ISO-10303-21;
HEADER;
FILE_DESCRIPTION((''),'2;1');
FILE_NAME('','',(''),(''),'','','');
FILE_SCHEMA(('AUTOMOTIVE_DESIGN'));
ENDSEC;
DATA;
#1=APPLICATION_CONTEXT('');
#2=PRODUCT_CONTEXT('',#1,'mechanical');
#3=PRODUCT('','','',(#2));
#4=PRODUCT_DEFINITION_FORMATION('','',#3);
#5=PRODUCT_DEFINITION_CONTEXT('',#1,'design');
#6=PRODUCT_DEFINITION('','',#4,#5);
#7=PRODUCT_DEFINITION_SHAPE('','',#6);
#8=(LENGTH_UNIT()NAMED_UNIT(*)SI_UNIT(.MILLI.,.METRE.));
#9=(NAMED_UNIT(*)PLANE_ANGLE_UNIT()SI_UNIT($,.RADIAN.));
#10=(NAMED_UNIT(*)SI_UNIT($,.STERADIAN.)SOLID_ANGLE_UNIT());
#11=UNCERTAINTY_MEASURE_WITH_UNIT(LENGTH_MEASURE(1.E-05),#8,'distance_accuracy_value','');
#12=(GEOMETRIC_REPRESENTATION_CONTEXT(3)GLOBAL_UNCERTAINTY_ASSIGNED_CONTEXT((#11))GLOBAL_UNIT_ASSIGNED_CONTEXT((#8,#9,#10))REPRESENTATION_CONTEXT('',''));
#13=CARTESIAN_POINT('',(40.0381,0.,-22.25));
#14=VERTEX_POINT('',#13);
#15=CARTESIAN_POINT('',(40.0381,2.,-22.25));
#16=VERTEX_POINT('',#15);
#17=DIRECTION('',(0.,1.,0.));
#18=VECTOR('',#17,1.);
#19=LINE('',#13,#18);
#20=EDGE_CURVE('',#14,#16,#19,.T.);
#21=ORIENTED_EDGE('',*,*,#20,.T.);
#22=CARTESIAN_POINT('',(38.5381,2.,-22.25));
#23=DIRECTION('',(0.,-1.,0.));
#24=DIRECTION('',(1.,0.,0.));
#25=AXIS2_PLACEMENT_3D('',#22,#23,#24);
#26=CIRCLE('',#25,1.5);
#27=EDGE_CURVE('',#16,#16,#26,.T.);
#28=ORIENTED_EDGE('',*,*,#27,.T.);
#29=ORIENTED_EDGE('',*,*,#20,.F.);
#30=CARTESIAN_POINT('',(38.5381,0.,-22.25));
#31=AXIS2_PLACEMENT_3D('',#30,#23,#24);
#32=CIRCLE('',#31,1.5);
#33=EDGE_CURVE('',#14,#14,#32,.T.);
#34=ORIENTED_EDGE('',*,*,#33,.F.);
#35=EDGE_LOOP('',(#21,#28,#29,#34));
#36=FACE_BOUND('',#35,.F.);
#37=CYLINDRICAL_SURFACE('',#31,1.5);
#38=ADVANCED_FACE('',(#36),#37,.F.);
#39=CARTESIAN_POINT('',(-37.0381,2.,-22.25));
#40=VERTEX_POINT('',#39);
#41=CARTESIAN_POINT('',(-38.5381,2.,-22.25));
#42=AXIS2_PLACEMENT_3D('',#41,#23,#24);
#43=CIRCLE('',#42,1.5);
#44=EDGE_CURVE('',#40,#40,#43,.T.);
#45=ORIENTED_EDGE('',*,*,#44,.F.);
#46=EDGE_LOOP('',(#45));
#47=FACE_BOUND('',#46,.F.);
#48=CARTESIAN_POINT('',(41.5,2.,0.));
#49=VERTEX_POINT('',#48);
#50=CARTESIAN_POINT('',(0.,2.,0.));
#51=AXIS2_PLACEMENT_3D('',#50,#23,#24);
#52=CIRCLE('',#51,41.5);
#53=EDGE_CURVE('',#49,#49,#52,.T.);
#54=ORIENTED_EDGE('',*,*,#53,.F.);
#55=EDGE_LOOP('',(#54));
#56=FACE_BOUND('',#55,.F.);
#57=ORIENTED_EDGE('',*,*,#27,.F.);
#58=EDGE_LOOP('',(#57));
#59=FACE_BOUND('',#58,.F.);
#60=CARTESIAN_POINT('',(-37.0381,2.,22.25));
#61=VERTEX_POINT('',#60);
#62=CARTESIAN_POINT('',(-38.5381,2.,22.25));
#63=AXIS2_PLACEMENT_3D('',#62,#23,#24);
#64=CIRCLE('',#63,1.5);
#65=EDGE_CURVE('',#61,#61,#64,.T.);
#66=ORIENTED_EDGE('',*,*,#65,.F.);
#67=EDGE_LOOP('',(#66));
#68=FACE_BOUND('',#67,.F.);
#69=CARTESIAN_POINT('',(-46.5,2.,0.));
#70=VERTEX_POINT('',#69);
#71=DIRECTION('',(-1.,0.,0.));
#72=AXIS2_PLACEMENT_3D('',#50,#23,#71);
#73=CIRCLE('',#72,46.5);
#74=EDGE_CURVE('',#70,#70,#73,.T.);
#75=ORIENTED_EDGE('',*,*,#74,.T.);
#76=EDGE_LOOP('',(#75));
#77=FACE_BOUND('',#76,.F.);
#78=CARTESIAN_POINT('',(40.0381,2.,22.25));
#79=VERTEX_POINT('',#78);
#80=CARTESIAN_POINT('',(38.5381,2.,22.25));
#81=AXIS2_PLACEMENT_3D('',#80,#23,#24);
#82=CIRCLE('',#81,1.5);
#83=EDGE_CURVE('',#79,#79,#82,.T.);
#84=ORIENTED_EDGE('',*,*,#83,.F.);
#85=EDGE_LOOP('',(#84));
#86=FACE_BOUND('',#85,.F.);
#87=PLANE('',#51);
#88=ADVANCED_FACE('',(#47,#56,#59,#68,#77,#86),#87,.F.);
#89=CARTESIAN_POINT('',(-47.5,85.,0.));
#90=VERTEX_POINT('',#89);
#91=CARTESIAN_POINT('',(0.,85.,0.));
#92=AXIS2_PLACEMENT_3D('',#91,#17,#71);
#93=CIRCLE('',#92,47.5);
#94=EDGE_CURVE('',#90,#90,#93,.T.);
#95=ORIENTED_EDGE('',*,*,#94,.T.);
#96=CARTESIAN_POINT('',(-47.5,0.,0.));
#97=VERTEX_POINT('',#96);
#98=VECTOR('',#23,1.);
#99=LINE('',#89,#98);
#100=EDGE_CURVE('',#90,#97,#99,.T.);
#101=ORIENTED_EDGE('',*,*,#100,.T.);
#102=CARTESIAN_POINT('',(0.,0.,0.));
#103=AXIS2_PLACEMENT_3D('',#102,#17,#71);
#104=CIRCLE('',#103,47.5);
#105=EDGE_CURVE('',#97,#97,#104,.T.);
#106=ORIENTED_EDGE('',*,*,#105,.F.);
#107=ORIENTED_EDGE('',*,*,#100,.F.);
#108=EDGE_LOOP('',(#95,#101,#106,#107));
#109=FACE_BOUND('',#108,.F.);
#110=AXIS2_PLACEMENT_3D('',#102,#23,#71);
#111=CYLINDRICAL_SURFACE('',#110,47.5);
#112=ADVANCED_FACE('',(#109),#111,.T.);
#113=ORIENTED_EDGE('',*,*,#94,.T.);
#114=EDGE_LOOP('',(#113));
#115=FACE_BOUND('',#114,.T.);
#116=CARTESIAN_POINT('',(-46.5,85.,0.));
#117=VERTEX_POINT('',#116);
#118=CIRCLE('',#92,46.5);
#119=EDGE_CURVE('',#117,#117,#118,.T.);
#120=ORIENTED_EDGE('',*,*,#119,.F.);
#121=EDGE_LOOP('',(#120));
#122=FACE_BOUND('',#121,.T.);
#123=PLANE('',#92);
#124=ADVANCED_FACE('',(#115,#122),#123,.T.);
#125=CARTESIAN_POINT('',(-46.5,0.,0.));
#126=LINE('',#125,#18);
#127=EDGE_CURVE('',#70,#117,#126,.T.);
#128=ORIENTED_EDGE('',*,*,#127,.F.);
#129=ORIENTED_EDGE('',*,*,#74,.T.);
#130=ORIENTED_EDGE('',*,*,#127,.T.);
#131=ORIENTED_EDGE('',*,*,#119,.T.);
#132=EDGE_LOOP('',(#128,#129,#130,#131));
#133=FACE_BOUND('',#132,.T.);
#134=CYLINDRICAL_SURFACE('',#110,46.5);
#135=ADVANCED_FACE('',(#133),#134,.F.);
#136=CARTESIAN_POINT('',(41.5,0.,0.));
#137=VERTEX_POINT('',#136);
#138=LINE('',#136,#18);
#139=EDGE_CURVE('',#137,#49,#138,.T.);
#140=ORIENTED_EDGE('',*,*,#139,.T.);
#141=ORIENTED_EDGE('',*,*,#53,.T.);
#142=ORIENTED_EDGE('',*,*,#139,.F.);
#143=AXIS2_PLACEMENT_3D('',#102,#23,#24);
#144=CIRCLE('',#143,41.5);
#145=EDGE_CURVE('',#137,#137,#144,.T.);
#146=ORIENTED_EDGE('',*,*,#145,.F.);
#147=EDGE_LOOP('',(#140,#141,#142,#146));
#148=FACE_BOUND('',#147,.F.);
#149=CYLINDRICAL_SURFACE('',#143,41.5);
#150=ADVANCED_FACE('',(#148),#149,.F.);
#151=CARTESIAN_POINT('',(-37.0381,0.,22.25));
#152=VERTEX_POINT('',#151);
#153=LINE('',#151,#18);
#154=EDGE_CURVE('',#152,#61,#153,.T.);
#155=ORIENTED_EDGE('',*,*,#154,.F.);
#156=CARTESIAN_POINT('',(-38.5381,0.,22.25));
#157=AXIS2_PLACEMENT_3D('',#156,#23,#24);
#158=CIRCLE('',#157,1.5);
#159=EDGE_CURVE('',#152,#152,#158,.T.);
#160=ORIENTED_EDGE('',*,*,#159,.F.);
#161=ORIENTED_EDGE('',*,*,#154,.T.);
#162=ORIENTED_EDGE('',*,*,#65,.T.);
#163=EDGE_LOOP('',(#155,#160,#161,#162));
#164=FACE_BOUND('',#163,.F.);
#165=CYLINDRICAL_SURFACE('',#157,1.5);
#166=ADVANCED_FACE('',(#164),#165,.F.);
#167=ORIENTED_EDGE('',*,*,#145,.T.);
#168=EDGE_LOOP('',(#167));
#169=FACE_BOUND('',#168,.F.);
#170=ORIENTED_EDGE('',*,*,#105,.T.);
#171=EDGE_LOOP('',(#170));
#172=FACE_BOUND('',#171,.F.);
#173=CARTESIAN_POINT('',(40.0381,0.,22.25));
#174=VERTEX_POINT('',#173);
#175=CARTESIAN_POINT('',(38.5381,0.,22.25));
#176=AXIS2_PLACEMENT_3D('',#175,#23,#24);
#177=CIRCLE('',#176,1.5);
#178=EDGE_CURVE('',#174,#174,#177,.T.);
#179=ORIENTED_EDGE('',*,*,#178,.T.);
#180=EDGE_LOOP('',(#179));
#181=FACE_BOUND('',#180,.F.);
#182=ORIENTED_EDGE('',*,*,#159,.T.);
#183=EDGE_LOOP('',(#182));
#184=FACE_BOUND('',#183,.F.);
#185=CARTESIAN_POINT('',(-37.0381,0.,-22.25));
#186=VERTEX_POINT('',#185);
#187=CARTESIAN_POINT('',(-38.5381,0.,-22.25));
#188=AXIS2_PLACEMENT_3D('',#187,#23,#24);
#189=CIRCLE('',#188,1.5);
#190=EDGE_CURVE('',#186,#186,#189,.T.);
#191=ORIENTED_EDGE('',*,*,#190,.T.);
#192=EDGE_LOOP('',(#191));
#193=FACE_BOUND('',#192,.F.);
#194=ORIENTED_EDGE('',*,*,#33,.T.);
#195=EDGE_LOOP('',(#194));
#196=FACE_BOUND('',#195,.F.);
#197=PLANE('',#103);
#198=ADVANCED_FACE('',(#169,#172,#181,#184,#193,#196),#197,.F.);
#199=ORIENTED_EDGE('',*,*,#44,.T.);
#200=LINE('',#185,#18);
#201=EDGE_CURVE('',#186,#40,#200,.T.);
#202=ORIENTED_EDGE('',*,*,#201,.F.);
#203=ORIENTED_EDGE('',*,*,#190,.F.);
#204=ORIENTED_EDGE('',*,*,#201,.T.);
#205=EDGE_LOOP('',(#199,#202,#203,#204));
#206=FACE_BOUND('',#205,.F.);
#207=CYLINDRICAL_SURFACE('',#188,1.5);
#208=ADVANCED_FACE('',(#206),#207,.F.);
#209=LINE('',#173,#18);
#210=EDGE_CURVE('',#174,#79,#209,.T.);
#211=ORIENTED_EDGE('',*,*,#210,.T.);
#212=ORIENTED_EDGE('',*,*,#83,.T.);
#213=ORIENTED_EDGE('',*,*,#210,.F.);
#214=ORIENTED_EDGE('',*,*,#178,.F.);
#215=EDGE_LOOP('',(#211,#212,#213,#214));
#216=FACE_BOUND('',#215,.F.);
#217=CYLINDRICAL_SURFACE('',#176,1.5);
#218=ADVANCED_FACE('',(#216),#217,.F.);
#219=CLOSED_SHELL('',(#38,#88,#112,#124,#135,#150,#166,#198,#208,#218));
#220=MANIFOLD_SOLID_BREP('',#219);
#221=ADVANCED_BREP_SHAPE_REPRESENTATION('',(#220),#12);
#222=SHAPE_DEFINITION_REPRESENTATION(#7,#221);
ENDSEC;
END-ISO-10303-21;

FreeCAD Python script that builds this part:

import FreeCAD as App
import Part
import Sketcher
Q = App.Units.Quantity

doc = App.newDocument("Part")
body = doc.addObject("PartDesign::Body", "Body")

# Sketch on XZ plane
sketch1 = body.newObject("Sketcher::SketchObject", "Sketch")
sketch1.AttachmentSupport = (doc.getObject("XZ_Plane"), [""])
sketch1.MapMode = "FlatFace"
sketch1.addGeometry(Part.Circle(App.Vector(0, 0, 0), App.Vector(0, 0, 1), 47.5), False)
sketch1.addGeometry(Part.Circle(App.Vector(0, 0, 0), App.Vector(0, 0, 1), 46.5), False)
sketch1.addConstraint(Sketcher.Constraint("Coincident", 0, 3, -1, 1))
sketch1.addConstraint(Sketcher.Constraint("Coincident", 1, 3, -1, 1))
sketch1.addConstraint(Sketcher.Constraint("Diameter", 0, Q("95 mm")))
sketch1.addConstraint(Sketcher.Constraint("Diameter", 1, Q("93 mm")))
pad1 = body.newObject("PartDesign::Pad", "Pad")
pad1.Profile = sketch1
pad1.Length = 85
pad1.Reversed = True

# Sketch on XZ plane
sketch2 = body.newObject("Sketcher::SketchObject", "Sketch001")
sketch2.AttachmentSupport = (doc.getObject("XZ_Plane"), [""])
sketch2.MapMode = "FlatFace"
sketch2.addGeometry(Part.Circle(App.Vector(0, 0, 0), App.Vector(0, 0, 1), 47.5), False)
sketch2.addGeometry(Part.Circle(App.Vector(0, 0, 0), App.Vector(0, 0, 1), 41.5), False)
sketch2.addConstraint(Sketcher.Constraint("Coincident", 0, 3, -1, 1))
sketch2.addConstraint(Sketcher.Constraint("Coincident", 1, 3, -1, 1))
sketch2.addConstraint(Sketcher.Constraint("Diameter", 1, Q("83 mm")))
sketch2.addConstraint(Sketcher.Constraint("Diameter", 0, Q("95 mm")))
pad2 = body.newObject("PartDesign::Pad", "Pad001")
pad2.Profile = sketch2
pad2.Length = 2
pad2.Reversed = True

# Sketch on XZ plane
sketch3 = body.newObject("Sketcher::SketchObject", "Sketch002")
sketch3.AttachmentSupport = (doc.getObject("XZ_Plane"), [""])
sketch3.MapMode = "FlatFace"
sketch3.addGeometry(Part.Circle(App.Vector(-38.5381, 22.25, 0), App.Vector(0, 0, 1), 1.5), False)
sketch3.addGeometry(Part.Circle(App.Vector(-38.5381, -22.25, 0), App.Vector(0, 0, 1), 1.5), False)
sketch3.addGeometry(Part.Circle(App.Vector(38.5381, -22.25, 0), App.Vector(0, 0, 1), 1.5), False)
sketch3.addGeometry(Part.Circle(App.Vector(38.5381, 22.25, 0), App.Vector(0, 0, 1), 1.5), False)
sketch3.addConstraint(Sketcher.Constraint("Equal", 0, 1))
sketch3.addConstraint(Sketcher.Constraint("Equal", 1, 2))
sketch3.addConstraint(Sketcher.Constraint("Equal", 2, 3))
sketch3.addConstraint(Sketcher.Constraint("Symmetric", 0, 3, 2, 3, -1, 1))
sketch3.addConstraint(Sketcher.Constraint("Symmetric", 1, 3, 3, 3, -1, 1))
sketch3.addConstraint(Sketcher.Constraint("Symmetric", 1, 3, 2, 3, -2))
sketch3.addConstraint(Sketcher.Constraint("Diameter", 0, Q("3 mm")))
sketch3.addConstraint(Sketcher.Constraint("DistanceY", 1, 3, 0, 3, Q("44.5 mm")))
sketch3.addConstraint(Sketcher.Constraint("DistanceX", 0, 3, -1, 1, Q("38.538 mm")))
pocket1 = body.newObject("PartDesign::Pocket", "Pocket")
pocket1.Profile = sketch3
pocket1.Length = 10

doc.recompute()
